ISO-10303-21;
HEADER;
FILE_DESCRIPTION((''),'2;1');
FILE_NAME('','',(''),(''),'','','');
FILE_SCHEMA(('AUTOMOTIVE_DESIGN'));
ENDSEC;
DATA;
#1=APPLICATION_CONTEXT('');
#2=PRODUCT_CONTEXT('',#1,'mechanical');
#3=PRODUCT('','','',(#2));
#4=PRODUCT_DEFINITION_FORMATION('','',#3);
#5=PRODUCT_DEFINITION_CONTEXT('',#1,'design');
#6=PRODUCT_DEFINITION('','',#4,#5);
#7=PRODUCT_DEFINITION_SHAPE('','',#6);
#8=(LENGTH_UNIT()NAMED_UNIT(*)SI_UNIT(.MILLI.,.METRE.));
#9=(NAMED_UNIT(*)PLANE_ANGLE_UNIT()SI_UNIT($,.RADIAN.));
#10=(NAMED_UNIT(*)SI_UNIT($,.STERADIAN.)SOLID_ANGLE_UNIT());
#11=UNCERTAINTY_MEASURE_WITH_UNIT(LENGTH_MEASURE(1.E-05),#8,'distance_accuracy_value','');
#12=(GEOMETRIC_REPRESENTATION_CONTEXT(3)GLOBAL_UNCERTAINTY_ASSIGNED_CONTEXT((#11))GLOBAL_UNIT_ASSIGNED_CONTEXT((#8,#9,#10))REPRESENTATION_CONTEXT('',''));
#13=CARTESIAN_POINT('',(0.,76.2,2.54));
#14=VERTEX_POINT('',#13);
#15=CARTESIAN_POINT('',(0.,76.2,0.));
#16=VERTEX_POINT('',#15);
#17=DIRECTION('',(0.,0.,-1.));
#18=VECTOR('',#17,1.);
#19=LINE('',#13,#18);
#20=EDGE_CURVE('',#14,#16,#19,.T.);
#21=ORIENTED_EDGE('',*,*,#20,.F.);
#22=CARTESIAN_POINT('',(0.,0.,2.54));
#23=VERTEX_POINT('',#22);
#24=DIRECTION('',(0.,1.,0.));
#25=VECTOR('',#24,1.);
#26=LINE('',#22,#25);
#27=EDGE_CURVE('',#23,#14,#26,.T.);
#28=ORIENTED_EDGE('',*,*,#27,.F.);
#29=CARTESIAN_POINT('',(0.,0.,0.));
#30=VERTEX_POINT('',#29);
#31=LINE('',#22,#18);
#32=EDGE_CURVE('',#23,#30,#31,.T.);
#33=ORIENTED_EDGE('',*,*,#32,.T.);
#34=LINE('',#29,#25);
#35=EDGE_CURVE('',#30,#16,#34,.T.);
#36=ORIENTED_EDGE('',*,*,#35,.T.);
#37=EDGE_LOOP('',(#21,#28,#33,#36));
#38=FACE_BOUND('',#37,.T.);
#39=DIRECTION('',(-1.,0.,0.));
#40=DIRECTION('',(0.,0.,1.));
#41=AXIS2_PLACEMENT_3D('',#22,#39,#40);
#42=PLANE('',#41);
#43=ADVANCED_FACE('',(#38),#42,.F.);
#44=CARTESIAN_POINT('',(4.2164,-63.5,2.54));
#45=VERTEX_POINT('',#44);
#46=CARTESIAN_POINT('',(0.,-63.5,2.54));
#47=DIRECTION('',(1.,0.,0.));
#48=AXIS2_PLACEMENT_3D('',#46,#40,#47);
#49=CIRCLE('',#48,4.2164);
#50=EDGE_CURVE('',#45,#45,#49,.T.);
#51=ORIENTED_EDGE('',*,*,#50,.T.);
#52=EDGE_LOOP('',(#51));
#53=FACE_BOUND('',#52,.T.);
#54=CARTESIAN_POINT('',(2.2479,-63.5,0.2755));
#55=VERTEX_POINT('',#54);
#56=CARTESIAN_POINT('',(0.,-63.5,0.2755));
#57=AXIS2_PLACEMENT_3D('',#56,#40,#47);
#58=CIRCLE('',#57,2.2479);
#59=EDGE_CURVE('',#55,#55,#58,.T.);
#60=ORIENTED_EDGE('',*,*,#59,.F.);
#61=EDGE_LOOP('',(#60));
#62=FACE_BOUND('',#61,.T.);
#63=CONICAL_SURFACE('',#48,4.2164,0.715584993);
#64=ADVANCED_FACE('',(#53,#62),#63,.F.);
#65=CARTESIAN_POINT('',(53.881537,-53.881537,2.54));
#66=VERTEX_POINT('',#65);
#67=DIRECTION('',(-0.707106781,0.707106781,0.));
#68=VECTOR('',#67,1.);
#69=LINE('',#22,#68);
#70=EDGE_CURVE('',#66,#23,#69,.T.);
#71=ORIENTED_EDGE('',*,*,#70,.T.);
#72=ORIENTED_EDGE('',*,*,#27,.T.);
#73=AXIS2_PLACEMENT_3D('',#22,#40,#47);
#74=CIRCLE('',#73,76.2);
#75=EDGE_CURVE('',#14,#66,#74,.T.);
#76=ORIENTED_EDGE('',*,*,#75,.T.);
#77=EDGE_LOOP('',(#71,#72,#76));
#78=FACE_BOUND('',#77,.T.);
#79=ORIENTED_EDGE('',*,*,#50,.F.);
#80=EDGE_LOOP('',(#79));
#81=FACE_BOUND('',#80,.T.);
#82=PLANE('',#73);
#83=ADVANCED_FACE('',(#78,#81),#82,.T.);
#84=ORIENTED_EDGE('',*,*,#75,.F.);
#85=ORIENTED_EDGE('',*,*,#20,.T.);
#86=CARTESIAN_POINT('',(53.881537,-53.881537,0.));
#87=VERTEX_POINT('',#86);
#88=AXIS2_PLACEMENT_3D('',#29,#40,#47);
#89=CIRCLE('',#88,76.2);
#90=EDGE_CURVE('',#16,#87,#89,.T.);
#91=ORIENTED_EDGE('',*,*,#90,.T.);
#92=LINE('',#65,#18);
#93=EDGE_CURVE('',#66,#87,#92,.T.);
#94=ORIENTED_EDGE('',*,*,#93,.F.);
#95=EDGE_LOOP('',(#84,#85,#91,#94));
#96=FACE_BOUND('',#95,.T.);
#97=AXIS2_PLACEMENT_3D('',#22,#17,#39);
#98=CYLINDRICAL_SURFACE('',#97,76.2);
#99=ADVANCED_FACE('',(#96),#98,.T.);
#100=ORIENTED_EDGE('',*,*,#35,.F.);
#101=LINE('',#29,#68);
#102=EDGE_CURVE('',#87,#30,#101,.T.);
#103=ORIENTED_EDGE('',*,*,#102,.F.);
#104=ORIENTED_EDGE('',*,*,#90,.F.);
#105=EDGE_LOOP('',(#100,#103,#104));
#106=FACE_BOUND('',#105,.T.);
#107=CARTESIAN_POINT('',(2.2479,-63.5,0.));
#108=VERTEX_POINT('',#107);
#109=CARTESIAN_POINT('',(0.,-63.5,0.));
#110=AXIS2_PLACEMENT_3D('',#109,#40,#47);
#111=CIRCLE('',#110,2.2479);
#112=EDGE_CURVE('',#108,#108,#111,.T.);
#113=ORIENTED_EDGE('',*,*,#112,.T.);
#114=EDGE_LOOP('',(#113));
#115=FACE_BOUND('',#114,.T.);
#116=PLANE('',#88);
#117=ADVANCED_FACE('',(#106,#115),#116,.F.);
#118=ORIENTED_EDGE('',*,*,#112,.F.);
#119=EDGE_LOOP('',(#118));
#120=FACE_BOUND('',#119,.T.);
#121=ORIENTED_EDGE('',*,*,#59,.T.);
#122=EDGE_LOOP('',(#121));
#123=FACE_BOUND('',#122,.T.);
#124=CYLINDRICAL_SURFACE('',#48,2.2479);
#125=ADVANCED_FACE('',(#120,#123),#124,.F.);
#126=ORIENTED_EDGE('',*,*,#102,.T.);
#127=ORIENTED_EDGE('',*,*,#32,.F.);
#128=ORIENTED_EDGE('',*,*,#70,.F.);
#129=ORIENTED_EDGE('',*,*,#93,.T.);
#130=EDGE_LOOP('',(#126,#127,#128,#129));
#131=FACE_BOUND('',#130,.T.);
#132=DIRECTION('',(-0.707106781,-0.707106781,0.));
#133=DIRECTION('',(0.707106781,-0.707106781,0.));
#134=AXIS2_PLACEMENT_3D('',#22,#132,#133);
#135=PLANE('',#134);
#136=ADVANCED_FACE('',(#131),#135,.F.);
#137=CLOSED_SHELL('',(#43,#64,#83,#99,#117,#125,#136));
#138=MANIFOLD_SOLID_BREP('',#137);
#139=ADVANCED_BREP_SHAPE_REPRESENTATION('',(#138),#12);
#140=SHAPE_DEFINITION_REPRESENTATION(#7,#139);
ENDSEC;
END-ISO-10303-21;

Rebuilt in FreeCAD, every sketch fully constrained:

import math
import FreeCAD as App
import Part
import Sketcher

V = App.Vector
Q = App.Units.Quantity

doc = App.newDocument("Part")
body = doc.addObject("PartDesign::Body", "Body")

sketch1 = body.newObject("Sketcher::SketchObject", "Sketch")
sketch1.AttachmentSupport = (doc.getObject("XY_Plane"), [""])
sketch1.MapMode = "FlatFace"
sketch1.addGeometry(Part.LineSegment(V(54, -54, 0), V(0, 0, 0)), False)
sketch1.addGeometry(Part.LineSegment(V(0, 0, 0), V(0, 76, 0)), False)
sketch1.addGeometry(Part.ArcOfCircle(Part.Circle(V(0, 0, 0), V(0, 0, 1), 76), math.radians(90), math.radians(315)), False)
sketch1.addConstraint(Sketcher.Constraint("Coincident", 0, 2, 1, 1))
sketch1.addConstraint(Sketcher.Constraint("Coincident", 1, 2, 2, 1))
sketch1.addConstraint(Sketcher.Constraint("Coincident", 2, 2, 0, 1))
sketch1.addConstraint(Sketcher.Constraint("Vertical", 1))
sketch1.addConstraint(Sketcher.Constraint("Coincident", 2, 3, -1, 1))
sketch1.addConstraint(Sketcher.Constraint("Coincident", 0, 2, -1, 1))
sketch1.addConstraint(Sketcher.Constraint("Radius", 2, Q("3 in")))
sketch1.addConstraint(Sketcher.Constraint("Angle", 0, Q("135 deg")))
pad1 = body.newObject("PartDesign::Pad", "Pad")
pad1.Profile = sketch1
pad1.Length = Q("0.1 in")

sketch2 = body.newObject("Sketcher::SketchObject", "Sketch001")
sketch2.AttachmentSupport = (doc.getObject("YZ_Plane"), [""])
sketch2.MapMode = "FlatFace"
sketch2.addGeometry(Part.LineSegment(V(-63.5, 0, 0), V(-63.5, 2.54, 0)), False)
sketch2.addGeometry(Part.LineSegment(V(-63.5, 2.54, 0), V(-67.72, 2.54, 0)), False)
sketch2.addGeometry(Part.LineSegment(V(-67.72, 2.54, 0), V(-65.75, 0.28, 0)), False)
sketch2.addGeometry(Part.LineSegment(V(-65.75, 0.28, 0), V(-65.75, 0, 0)), False)
sketch2.addGeometry(Part.LineSegment(V(-65.75, 0, 0), V(-63.5, 0, 0)), False)
sketch2.addGeometry(Part.LineSegment(V(-63.5, 2.54, 0), V(-63.5, 0, 0)), True)
sketch2.addConstraint(Sketcher.Constraint("Coincident", 0, 2, 1, 1))
sketch2.addConstraint(Sketcher.Constraint("Coincident", 1, 2, 2, 1))
sketch2.addConstraint(Sketcher.Constraint("Coincident", 2, 2, 3, 1))
sketch2.addConstraint(Sketcher.Constraint("Coincident", 3, 2, 4, 1))
sketch2.addConstraint(Sketcher.Constraint("Coincident", 4, 2, 0, 1))
sketch2.addConstraint(Sketcher.Constraint("Vertical", 0))
sketch2.addConstraint(Sketcher.Constraint("Horizontal", 1))
sketch2.addConstraint(Sketcher.Constraint("Vertical", 3))
sketch2.addConstraint(Sketcher.Constraint("Horizontal", 4))
sketch2.addConstraint(Sketcher.Constraint("Vertical", 5))
sketch2.addConstraint(Sketcher.Constraint("Coincident", 5, 1, 0, 2))
sketch2.addConstraint(Sketcher.Constraint("PointOnObject", 3, 2, -1))
sketch2.addConstraint(Sketcher.Constraint("PointOnObject", 5, 2, -1))
sketch2.addConstraint(Sketcher.Constraint("DistanceY", 0, 1, 0, 2, Q("0.1 in")))
sketch2.addConstraint(Sketcher.Constraint("Angle", 2, Q("-49 deg")))
sketch2.addConstraint(Sketcher.Constraint("DistanceX", 0, 2, -1, 1, Q("2.5 in")))
sketch2.addConstraint(Sketcher.Constraint("DistanceX", 1, 2, 1, 1, Q("0.166 in")))
sketch2.addConstraint(Sketcher.Constraint("DistanceX", 4, 1, 4, 2, Q("0.0885 in")))
groove = body.newObject("PartDesign::Groove", "Groove")
groove.Profile = sketch2
groove.ReferenceAxis = (sketch2, ["Axis0"])
groove.Angle = 360

doc.recompute()
